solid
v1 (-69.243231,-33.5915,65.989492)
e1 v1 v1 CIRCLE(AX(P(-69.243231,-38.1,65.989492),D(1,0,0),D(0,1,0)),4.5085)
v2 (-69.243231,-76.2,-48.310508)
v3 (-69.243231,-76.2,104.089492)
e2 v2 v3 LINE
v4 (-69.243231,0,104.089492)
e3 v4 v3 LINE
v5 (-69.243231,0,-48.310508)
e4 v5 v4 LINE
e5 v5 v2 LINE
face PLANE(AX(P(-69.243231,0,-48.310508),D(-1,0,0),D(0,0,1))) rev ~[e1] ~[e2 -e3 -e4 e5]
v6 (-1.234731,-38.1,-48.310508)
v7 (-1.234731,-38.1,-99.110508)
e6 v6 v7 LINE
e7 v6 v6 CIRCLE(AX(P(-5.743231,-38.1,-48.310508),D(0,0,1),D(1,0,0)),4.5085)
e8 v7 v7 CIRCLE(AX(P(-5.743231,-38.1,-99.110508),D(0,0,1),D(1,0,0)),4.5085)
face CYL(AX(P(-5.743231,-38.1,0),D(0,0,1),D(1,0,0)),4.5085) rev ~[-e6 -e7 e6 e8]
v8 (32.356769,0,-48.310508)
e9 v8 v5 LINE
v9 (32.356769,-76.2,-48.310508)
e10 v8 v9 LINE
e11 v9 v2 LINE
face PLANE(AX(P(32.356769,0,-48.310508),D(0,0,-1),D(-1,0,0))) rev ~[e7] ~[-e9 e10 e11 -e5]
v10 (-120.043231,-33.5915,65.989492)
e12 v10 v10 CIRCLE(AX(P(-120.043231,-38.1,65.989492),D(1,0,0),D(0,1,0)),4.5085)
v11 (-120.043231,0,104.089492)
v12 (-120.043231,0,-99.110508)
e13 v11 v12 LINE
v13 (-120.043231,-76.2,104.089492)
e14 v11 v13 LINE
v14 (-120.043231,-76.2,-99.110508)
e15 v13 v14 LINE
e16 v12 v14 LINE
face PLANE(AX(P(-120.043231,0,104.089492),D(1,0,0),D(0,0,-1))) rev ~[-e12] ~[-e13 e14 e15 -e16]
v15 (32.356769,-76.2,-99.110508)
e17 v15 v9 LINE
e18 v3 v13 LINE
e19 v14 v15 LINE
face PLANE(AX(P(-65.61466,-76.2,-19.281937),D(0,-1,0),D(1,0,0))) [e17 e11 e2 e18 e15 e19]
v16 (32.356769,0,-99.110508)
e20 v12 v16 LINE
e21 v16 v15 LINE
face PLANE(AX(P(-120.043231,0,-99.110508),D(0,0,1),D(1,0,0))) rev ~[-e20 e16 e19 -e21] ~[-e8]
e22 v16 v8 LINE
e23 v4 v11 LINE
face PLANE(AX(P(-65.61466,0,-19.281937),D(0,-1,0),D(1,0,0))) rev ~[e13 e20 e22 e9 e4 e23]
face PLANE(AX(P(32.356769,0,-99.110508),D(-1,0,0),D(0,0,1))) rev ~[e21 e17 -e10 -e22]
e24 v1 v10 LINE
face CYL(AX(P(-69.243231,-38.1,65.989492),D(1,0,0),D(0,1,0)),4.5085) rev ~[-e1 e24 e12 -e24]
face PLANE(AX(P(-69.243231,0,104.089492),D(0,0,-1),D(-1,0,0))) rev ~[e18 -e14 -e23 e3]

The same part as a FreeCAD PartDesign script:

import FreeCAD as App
import Part
import Sketcher
Q = App.Units.Quantity


def add_polygon(sketch, points):
    """Adds a closed chain of lines whose ends are joined by coincident constraints."""
    first, n = sketch.GeometryCount, len(points)
    for a, b in zip(points, points[1:] + points[:1]):
        sketch.addGeometry(Part.LineSegment(App.Vector(*a, 0), App.Vector(*b, 0)), False)
    for i in range(n):
        sketch.addConstraint(Sketcher.Constraint("Coincident", first + i, 2, first + (i + 1) % n, 1))

doc = App.newDocument("Part")
body = doc.addObject("PartDesign::Body", "Body")

sketch1 = doc.addObject("Sketcher::SketchObject", "Sketch")
body.addObject(sketch1)
sketch1.AttachmentSupport = (doc.XZ_Plane, [""])
sketch1.MapMode = "FlatFace"
add_polygon(sketch1, [(-69, 104), (-120, 104), (-120, -99), (32, -99), (32, -48), (-69, -48)])
sketch1.addConstraint(Sketcher.Constraint("Horizontal", 0))
sketch1.addConstraint(Sketcher.Constraint("Vertical", 1))
sketch1.addConstraint(Sketcher.Constraint("Horizontal", 2))
sketch1.addConstraint(Sketcher.Constraint("Vertical", 3))
sketch1.addConstraint(Sketcher.Constraint("Horizontal", 4))
sketch1.addConstraint(Sketcher.Constraint("Vertical", 5))
sketch1.addConstraint(Sketcher.Constraint("Equal", 0, 3))
sketch1.addConstraint(Sketcher.Constraint("Equal", 2, 5))
sketch1.addConstraint(Sketcher.Constraint("DistanceX", 0, 2, 0, 1, Q("2 in")))
sketch1.addConstraint(Sketcher.Constraint("DistanceX", 2, 1, 2, 2, Q("6 in")))
sketch1.addConstraint(Sketcher.Constraint("DistanceX", 0, 2, -1, 1, 120.043231))
sketch1.addConstraint(Sketcher.Constraint("DistanceY", -1, 1, 0, 2, 104.089492))
pad1 = doc.addObject("PartDesign::Pad", "Pad")
body.addObject(pad1)
pad1.Profile = sketch1
pad1.Length = Q("3 in")

sketch2 = doc.addObject("Sketcher::SketchObject", "Sketch001")
body.addObject(sketch2)
sketch2.AttachmentSupport = (doc.XY_Plane, [""])
sketch2.MapMode = "FlatFace"
sketch2.addGeometry(Part.Circle(App.Vector(-5.7, -38.1, 0), App.Vector(0, 0, 1), 4.5), False)
sketch2.addConstraint(Sketcher.Constraint("Diameter", 0, Q("0.355 in")))
sketch2.addConstraint(Sketcher.Constraint("DistanceY", 0, 3, -1, 1, Q("1.5 in")))
sketch2.addConstraint(Sketcher.Constraint("DistanceX", 0, 3, -1, 1, 5.743231))
pocket1 = doc.addObject("PartDesign::Pocket", "Pocket")
body.addObject(pocket1)
pocket1.Profile = sketch2
pocket1.Length = Q("4 in")

sketch3 = doc.addObject("Sketcher::SketchObject", "Sketch002")
body.addObject(sketch3)
sketch3.AttachmentSupport = (doc.YZ_Plane, [""])
sketch3.MapMode = "FlatFace"
sketch3.AttachmentOffset = App.Placement(App.Vector(0, 0, -69.243231), App.Rotation())
sketch3.addGeometry(Part.Circle(App.Vector(-38.1, 66, 0), App.Vector(0, 0, 1), 4.5), False)
sketch3.addConstraint(Sketcher.Constraint("Diameter", 0, Q("0.355 in")))
sketch3.addConstraint(Sketcher.Constraint("DistanceX", 0, 3, -1, 1, Q("1.5 in")))
sketch3.addConstraint(Sketcher.Constraint("DistanceY", -1, 1, 0, 3, 65.989492))
pocket2 = doc.addObject("PartDesign::Pocket", "Pocket001")
body.addObject(pocket2)
pocket2.Profile = sketch3
pocket2.Length = Q("23 in")

doc.recompute()
